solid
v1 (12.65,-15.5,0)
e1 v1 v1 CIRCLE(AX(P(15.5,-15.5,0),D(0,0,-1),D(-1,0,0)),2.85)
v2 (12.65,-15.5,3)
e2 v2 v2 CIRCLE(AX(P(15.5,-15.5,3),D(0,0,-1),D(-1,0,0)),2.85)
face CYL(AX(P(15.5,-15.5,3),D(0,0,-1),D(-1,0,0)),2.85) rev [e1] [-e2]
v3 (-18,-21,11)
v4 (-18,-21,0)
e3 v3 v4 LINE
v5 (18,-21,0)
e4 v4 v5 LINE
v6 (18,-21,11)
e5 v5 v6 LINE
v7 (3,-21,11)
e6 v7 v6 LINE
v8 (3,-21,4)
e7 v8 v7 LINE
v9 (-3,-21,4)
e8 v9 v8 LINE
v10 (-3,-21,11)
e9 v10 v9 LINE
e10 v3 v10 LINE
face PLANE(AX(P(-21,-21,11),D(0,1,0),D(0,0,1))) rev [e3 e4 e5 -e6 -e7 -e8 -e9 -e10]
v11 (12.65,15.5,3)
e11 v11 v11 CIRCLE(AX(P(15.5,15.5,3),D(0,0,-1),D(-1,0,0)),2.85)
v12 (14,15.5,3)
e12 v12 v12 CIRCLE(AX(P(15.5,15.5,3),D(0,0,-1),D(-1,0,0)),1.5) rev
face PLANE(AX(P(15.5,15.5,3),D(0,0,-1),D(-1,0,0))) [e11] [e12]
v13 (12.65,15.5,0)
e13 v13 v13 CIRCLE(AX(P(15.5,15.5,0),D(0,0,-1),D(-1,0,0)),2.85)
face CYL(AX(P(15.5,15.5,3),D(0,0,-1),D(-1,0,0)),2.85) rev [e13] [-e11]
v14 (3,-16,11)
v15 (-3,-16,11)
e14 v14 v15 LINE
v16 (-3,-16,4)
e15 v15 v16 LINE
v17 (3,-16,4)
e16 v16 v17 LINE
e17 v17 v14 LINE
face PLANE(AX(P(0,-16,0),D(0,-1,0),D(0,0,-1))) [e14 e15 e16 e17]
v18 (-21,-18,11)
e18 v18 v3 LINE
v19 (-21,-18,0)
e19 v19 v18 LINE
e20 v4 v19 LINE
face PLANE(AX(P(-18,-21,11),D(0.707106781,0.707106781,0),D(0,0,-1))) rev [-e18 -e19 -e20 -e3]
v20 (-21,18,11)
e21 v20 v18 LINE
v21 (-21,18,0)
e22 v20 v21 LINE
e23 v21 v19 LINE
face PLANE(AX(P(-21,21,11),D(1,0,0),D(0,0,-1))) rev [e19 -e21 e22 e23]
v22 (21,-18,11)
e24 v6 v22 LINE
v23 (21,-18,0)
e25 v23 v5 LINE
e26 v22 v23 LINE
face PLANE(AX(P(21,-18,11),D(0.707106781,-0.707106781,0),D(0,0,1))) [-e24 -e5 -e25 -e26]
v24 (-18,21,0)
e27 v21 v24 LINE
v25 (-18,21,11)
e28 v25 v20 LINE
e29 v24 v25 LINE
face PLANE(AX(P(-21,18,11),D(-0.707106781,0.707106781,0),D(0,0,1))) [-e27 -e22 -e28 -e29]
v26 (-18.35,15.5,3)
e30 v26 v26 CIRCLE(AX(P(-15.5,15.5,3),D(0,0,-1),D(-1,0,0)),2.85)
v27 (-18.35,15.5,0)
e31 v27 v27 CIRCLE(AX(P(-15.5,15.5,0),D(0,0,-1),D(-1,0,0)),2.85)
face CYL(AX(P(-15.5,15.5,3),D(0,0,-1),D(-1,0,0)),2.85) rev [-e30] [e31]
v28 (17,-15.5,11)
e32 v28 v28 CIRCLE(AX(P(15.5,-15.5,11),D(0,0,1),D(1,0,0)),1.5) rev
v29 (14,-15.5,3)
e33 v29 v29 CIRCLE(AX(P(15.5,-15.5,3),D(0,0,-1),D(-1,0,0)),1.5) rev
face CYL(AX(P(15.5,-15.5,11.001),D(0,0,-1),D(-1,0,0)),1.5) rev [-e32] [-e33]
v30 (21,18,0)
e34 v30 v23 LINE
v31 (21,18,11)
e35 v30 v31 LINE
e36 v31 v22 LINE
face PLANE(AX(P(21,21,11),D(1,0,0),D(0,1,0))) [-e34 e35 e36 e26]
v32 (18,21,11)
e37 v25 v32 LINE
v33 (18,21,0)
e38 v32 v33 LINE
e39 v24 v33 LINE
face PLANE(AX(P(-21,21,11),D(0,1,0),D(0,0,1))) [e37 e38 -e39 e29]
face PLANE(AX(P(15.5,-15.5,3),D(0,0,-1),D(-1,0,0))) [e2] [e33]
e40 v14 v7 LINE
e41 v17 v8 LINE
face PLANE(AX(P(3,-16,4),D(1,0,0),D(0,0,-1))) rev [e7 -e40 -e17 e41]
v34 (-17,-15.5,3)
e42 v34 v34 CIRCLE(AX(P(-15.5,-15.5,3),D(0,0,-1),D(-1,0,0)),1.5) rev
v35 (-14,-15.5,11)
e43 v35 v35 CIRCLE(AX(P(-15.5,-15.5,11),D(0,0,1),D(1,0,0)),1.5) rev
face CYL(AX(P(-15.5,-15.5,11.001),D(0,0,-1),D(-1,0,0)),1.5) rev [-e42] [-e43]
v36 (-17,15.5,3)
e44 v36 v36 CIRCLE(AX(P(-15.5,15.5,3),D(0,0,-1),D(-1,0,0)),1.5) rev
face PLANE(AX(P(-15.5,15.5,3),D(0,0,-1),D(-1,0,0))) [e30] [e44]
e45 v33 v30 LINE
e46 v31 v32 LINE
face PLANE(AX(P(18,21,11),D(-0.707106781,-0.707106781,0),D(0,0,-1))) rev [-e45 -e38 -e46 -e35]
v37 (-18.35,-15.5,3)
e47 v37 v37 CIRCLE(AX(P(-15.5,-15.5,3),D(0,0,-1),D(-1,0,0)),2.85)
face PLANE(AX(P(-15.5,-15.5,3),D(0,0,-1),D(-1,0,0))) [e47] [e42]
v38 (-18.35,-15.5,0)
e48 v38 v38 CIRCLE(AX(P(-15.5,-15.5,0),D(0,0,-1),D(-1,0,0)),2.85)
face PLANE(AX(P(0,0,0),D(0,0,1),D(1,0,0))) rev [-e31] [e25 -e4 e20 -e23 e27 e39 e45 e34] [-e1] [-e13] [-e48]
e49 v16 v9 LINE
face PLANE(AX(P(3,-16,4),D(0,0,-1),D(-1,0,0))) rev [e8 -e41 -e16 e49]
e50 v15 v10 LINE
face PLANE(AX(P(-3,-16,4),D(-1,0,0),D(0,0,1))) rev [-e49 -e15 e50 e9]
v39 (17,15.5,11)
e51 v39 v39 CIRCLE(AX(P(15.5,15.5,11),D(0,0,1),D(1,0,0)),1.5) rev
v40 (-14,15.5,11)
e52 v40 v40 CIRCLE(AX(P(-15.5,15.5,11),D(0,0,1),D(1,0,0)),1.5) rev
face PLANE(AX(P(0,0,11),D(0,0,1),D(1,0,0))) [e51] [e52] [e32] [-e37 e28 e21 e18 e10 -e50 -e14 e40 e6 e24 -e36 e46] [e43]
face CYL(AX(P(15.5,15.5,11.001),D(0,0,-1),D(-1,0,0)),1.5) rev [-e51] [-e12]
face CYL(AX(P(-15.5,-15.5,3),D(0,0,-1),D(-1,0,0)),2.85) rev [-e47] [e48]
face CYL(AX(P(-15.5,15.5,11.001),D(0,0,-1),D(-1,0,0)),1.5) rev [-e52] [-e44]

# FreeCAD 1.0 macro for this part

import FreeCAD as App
import Part
import Sketcher
Q = App.Units.Quantity


def edges_at(feature, points):
    """Names of the edges that pass closest to the given points."""
    edges = feature.Shape.Edges
    near = lambda p: min(range(len(edges)), key=lambda i: edges[i].distToShape(Part.Vertex(*p))[0])
    return sorted({f"Edge{near(p) + 1}" for p in points})

doc = App.newDocument("Part")
body = doc.addObject("PartDesign::Body", "Body")

# Sketch on XY plane
sketch1 = body.newObject("Sketcher::SketchObject", "Sketch")
sketch1.AttachmentSupport = (doc.getObject("XY_Plane"), [""])
sketch1.MapMode = "FlatFace"
sketch1.addGeometry([
    Part.LineSegment(App.Vector(-21, 21, 0), App.Vector(-21, -21, 0)),
    Part.LineSegment(App.Vector(-21, -21, 0), App.Vector(21, -21, 0)),
    Part.LineSegment(App.Vector(21, -21, 0), App.Vector(21, 21, 0)),
    Part.LineSegment(App.Vector(21, 21, 0), App.Vector(-21, 21, 0)),
], False)
sketch1.addConstraint([
    Sketcher.Constraint("Coincident", 0, 2, 1, 1),
    Sketcher.Constraint("Coincident", 1, 2, 2, 1),
    Sketcher.Constraint("Coincident", 2, 2, 3, 1),
    Sketcher.Constraint("Coincident", 3, 2, 0, 1),
    Sketcher.Constraint("Vertical", 0),
    Sketcher.Constraint("Horizontal", 1),
    Sketcher.Constraint("Vertical", 2),
    Sketcher.Constraint("Horizontal", 3),
    Sketcher.Constraint("Symmetric", 0, 2, 2, 2, -1, 1),
    Sketcher.Constraint("Equal", 3, 0),
    Sketcher.Constraint("DistanceX", 1, 1, 1, 2, Q("42 mm")),
])
pad1 = body.newObject("PartDesign::Pad", "Pad")
pad1.Profile = sketch1
pad1.Length = 11
doc.recompute()

chamfer = body.newObject("PartDesign::Chamfer", "Chamfer")
chamfer.Base = (pad1, edges_at(pad1, [
    (-21, 21, 5.5),
    (21, 21, 5.5),
    (21, -21, 5.5),
    (-21, -21, 5.5),
]))
chamfer.Size = 3

# Sketch on XY plane
sketch2 = body.newObject("Sketcher::SketchObject", "Sketch001")
sketch2.AttachmentSupport = (doc.getObject("XY_Plane"), [""])
sketch2.MapMode = "FlatFace"
sketch2.addGeometry(Part.Circle(App.Vector(15.5, 15.5, 0), App.Vector(0, 0, 1), 1.5), False)
sketch2.addConstraint([
    Sketcher.Constraint("Diameter", 0, Q("3 mm")),
    Sketcher.Constraint("DistanceX", -1, 1, 0, 3, Q("15.5 mm")),
    Sketcher.Constraint("DistanceY", -1, 1, 0, 3, Q("15.5 mm")),
])
pocket1 = body.newObject("PartDesign::Pocket", "Pocket")
pocket1.Profile = sketch2
pocket1.Type = "UpToFirst"
pocket1.Reversed = True

# Sketch on XY plane
sketch3 = body.newObject("Sketcher::SketchObject", "Sketch002")
sketch3.AttachmentSupport = (doc.getObject("XY_Plane"), [""])
sketch3.MapMode = "FlatFace"
sketch3.addGeometry(Part.Circle(App.Vector(-15.5, 15.5, 0), App.Vector(0, 0, 1), 1.5), False)
sketch3.addConstraint([
    Sketcher.Constraint("Diameter", 0, Q("3 mm")),
    Sketcher.Constraint("DistanceX", 0, 3, -1, 1, Q("15.5 mm")),
    Sketcher.Constraint("DistanceY", -1, 1, 0, 3, Q("15.5 mm")),
])
pocket2 = body.newObject("PartDesign::Pocket", "Pocket001")
pocket2.Profile = sketch3
pocket2.Type = "UpToFirst"
pocket2.Reversed = True

# Sketch on XY plane
sketch4 = body.newObject("Sketcher::SketchObject", "Sketch003")
sketch4.AttachmentSupport = (doc.getObject("XY_Plane"), [""])
sketch4.MapMode = "FlatFace"
sketch4.addGeometry(Part.Circle(App.Vector(-15.5, -15.5, 0), App.Vector(0, 0, 1), 1.5), False)
sketch4.addConstraint([
    Sketcher.Constraint("Diameter", 0, Q("3 mm")),
    Sketcher.Constraint("DistanceX", 0, 3, -1, 1, Q("15.5 mm")),
    Sketcher.Constraint("DistanceY", 0, 3, -1, 1, Q("15.5 mm")),
])
pocket3 = body.newObject("PartDesign::Pocket", "Pocket002")
pocket3.Profile = sketch4
pocket3.Type = "UpToFirst"
pocket3.Reversed = True

# Sketch on XY plane
sketch5 = body.newObject("Sketcher::SketchObject", "Sketch004")
sketch5.AttachmentSupport = (doc.getObject("XY_Plane"), [""])
sketch5.MapMode = "FlatFace"
sketch5.addGeometry(Part.Circle(App.Vector(15.5, -15.5, 0), App.Vector(0, 0, 1), 1.5), False)
sketch5.addConstraint([
    Sketcher.Constraint("Diameter", 0, Q("3 mm")),
    Sketcher.Constraint("DistanceX", -1, 1, 0, 3, Q("15.5 mm")),
    Sketcher.Constraint("DistanceY", 0, 3, -1, 1, Q("15.5 mm")),
])
pocket4 = body.newObject("PartDesign::Pocket", "Pocket003")
pocket4.Profile = sketch5
pocket4.Type = "UpToFirst"
pocket4.Reversed = True

# Sketch on XY plane
sketch6 = body.newObject("Sketcher::SketchObject", "Sketch005")
sketch6.AttachmentSupport = (doc.getObject("XY_Plane"), [""])
sketch6.MapMode = "FlatFace"
sketch6.addGeometry([
    Part.Circle(App.Vector(15.5, 15.5, 0), App.Vector(0, 0, 1), 2.9),
    Part.Circle(App.Vector(-15.5, 15.5, 0), App.Vector(0, 0, 1), 2.9),
    Part.Circle(App.Vector(-15.5, -15.5, 0), App.Vector(0, 0, 1), 2.9),
    Part.Circle(App.Vector(15.5, -15.5, 0), App.Vector(0, 0, 1), 2.9),
], False)
sketch6.addConstraint([
    Sketcher.Constraint("Equal", 0, 1),
    Sketcher.Constraint("Equal", 1, 2),
    Sketcher.Constraint("Equal", 2, 3),
    Sketcher.Constraint("Symmetric", 0, 3, 2, 3, -1, 1),
    Sketcher.Constraint("Symmetric", 1, 3, 3, 3, -1, 1),
    Sketcher.Constraint("Symmetric", 0, 3, 1, 3, -2),
    Sketcher.Constraint("Diameter", 0, Q("5.7 mm")),
    Sketcher.Constraint("DistanceX", 1, 3, 0, 3, Q("31 mm")),
    Sketcher.Constraint("DistanceY", 2, 3, 1, 3, Q("31 mm")),
])
pocket5 = body.newObject("PartDesign::Pocket", "Pocket004")
pocket5.Profile = sketch6
pocket5.Length = 3
pocket5.Reversed = True

# Sketch on XZ plane
sketch7 = body.newObject("Sketcher::SketchObject", "Sketch006")
sketch7.AttachmentSupport = (doc.getObject("XZ_Plane"), [""])
sketch7.MapMode = "FlatFace"
sketch7.AttachmentOffset = App.Placement(App.Vector(0, 0, 21), App.Rotation())
sketch7.addGeometry([
    Part.LineSegment(App.Vector(-3, 11, 0), App.Vector(-3, 4, 0)),
    Part.LineSegment(App.Vector(-3, 4, 0), App.Vector(3, 4, 0)),
    Part.LineSegment(App.Vector(3, 4, 0), App.Vector(3, 11, 0)),
    Part.LineSegment(App.Vector(3, 11, 0), App.Vector(-3, 11, 0)),
], False)
sketch7.addConstraint([
    Sketcher.Constraint("Coincident", 0, 2, 1, 1),
    Sketcher.Constraint("Coincident", 1, 2, 2, 1),
    Sketcher.Constraint("Coincident", 2, 2, 3, 1),
    Sketcher.Constraint("Coincident", 3, 2, 0, 1),
    Sketcher.Constraint("Vertical", 0),
    Sketcher.Constraint("Horizontal", 1),
    Sketcher.Constraint("Vertical", 2),
    Sketcher.Constraint("Horizontal", 3),
    Sketcher.Constraint("DistanceX", 1, 1, 1, 2, Q("6 mm")),
    Sketcher.Constraint("DistanceY", 0, 2, 0, 1, Q("7 mm")),
    Sketcher.Constraint("DistanceX", 0, 2, -1, 1, Q("3 mm")),
    Sketcher.Constraint("DistanceY", -1, 1, 0, 2, Q("4 mm")),
])
pocket6 = body.newObject("PartDesign::Pocket", "Pocket005")
pocket6.Profile = sketch7
pocket6.Length = 5

doc.recompute()
